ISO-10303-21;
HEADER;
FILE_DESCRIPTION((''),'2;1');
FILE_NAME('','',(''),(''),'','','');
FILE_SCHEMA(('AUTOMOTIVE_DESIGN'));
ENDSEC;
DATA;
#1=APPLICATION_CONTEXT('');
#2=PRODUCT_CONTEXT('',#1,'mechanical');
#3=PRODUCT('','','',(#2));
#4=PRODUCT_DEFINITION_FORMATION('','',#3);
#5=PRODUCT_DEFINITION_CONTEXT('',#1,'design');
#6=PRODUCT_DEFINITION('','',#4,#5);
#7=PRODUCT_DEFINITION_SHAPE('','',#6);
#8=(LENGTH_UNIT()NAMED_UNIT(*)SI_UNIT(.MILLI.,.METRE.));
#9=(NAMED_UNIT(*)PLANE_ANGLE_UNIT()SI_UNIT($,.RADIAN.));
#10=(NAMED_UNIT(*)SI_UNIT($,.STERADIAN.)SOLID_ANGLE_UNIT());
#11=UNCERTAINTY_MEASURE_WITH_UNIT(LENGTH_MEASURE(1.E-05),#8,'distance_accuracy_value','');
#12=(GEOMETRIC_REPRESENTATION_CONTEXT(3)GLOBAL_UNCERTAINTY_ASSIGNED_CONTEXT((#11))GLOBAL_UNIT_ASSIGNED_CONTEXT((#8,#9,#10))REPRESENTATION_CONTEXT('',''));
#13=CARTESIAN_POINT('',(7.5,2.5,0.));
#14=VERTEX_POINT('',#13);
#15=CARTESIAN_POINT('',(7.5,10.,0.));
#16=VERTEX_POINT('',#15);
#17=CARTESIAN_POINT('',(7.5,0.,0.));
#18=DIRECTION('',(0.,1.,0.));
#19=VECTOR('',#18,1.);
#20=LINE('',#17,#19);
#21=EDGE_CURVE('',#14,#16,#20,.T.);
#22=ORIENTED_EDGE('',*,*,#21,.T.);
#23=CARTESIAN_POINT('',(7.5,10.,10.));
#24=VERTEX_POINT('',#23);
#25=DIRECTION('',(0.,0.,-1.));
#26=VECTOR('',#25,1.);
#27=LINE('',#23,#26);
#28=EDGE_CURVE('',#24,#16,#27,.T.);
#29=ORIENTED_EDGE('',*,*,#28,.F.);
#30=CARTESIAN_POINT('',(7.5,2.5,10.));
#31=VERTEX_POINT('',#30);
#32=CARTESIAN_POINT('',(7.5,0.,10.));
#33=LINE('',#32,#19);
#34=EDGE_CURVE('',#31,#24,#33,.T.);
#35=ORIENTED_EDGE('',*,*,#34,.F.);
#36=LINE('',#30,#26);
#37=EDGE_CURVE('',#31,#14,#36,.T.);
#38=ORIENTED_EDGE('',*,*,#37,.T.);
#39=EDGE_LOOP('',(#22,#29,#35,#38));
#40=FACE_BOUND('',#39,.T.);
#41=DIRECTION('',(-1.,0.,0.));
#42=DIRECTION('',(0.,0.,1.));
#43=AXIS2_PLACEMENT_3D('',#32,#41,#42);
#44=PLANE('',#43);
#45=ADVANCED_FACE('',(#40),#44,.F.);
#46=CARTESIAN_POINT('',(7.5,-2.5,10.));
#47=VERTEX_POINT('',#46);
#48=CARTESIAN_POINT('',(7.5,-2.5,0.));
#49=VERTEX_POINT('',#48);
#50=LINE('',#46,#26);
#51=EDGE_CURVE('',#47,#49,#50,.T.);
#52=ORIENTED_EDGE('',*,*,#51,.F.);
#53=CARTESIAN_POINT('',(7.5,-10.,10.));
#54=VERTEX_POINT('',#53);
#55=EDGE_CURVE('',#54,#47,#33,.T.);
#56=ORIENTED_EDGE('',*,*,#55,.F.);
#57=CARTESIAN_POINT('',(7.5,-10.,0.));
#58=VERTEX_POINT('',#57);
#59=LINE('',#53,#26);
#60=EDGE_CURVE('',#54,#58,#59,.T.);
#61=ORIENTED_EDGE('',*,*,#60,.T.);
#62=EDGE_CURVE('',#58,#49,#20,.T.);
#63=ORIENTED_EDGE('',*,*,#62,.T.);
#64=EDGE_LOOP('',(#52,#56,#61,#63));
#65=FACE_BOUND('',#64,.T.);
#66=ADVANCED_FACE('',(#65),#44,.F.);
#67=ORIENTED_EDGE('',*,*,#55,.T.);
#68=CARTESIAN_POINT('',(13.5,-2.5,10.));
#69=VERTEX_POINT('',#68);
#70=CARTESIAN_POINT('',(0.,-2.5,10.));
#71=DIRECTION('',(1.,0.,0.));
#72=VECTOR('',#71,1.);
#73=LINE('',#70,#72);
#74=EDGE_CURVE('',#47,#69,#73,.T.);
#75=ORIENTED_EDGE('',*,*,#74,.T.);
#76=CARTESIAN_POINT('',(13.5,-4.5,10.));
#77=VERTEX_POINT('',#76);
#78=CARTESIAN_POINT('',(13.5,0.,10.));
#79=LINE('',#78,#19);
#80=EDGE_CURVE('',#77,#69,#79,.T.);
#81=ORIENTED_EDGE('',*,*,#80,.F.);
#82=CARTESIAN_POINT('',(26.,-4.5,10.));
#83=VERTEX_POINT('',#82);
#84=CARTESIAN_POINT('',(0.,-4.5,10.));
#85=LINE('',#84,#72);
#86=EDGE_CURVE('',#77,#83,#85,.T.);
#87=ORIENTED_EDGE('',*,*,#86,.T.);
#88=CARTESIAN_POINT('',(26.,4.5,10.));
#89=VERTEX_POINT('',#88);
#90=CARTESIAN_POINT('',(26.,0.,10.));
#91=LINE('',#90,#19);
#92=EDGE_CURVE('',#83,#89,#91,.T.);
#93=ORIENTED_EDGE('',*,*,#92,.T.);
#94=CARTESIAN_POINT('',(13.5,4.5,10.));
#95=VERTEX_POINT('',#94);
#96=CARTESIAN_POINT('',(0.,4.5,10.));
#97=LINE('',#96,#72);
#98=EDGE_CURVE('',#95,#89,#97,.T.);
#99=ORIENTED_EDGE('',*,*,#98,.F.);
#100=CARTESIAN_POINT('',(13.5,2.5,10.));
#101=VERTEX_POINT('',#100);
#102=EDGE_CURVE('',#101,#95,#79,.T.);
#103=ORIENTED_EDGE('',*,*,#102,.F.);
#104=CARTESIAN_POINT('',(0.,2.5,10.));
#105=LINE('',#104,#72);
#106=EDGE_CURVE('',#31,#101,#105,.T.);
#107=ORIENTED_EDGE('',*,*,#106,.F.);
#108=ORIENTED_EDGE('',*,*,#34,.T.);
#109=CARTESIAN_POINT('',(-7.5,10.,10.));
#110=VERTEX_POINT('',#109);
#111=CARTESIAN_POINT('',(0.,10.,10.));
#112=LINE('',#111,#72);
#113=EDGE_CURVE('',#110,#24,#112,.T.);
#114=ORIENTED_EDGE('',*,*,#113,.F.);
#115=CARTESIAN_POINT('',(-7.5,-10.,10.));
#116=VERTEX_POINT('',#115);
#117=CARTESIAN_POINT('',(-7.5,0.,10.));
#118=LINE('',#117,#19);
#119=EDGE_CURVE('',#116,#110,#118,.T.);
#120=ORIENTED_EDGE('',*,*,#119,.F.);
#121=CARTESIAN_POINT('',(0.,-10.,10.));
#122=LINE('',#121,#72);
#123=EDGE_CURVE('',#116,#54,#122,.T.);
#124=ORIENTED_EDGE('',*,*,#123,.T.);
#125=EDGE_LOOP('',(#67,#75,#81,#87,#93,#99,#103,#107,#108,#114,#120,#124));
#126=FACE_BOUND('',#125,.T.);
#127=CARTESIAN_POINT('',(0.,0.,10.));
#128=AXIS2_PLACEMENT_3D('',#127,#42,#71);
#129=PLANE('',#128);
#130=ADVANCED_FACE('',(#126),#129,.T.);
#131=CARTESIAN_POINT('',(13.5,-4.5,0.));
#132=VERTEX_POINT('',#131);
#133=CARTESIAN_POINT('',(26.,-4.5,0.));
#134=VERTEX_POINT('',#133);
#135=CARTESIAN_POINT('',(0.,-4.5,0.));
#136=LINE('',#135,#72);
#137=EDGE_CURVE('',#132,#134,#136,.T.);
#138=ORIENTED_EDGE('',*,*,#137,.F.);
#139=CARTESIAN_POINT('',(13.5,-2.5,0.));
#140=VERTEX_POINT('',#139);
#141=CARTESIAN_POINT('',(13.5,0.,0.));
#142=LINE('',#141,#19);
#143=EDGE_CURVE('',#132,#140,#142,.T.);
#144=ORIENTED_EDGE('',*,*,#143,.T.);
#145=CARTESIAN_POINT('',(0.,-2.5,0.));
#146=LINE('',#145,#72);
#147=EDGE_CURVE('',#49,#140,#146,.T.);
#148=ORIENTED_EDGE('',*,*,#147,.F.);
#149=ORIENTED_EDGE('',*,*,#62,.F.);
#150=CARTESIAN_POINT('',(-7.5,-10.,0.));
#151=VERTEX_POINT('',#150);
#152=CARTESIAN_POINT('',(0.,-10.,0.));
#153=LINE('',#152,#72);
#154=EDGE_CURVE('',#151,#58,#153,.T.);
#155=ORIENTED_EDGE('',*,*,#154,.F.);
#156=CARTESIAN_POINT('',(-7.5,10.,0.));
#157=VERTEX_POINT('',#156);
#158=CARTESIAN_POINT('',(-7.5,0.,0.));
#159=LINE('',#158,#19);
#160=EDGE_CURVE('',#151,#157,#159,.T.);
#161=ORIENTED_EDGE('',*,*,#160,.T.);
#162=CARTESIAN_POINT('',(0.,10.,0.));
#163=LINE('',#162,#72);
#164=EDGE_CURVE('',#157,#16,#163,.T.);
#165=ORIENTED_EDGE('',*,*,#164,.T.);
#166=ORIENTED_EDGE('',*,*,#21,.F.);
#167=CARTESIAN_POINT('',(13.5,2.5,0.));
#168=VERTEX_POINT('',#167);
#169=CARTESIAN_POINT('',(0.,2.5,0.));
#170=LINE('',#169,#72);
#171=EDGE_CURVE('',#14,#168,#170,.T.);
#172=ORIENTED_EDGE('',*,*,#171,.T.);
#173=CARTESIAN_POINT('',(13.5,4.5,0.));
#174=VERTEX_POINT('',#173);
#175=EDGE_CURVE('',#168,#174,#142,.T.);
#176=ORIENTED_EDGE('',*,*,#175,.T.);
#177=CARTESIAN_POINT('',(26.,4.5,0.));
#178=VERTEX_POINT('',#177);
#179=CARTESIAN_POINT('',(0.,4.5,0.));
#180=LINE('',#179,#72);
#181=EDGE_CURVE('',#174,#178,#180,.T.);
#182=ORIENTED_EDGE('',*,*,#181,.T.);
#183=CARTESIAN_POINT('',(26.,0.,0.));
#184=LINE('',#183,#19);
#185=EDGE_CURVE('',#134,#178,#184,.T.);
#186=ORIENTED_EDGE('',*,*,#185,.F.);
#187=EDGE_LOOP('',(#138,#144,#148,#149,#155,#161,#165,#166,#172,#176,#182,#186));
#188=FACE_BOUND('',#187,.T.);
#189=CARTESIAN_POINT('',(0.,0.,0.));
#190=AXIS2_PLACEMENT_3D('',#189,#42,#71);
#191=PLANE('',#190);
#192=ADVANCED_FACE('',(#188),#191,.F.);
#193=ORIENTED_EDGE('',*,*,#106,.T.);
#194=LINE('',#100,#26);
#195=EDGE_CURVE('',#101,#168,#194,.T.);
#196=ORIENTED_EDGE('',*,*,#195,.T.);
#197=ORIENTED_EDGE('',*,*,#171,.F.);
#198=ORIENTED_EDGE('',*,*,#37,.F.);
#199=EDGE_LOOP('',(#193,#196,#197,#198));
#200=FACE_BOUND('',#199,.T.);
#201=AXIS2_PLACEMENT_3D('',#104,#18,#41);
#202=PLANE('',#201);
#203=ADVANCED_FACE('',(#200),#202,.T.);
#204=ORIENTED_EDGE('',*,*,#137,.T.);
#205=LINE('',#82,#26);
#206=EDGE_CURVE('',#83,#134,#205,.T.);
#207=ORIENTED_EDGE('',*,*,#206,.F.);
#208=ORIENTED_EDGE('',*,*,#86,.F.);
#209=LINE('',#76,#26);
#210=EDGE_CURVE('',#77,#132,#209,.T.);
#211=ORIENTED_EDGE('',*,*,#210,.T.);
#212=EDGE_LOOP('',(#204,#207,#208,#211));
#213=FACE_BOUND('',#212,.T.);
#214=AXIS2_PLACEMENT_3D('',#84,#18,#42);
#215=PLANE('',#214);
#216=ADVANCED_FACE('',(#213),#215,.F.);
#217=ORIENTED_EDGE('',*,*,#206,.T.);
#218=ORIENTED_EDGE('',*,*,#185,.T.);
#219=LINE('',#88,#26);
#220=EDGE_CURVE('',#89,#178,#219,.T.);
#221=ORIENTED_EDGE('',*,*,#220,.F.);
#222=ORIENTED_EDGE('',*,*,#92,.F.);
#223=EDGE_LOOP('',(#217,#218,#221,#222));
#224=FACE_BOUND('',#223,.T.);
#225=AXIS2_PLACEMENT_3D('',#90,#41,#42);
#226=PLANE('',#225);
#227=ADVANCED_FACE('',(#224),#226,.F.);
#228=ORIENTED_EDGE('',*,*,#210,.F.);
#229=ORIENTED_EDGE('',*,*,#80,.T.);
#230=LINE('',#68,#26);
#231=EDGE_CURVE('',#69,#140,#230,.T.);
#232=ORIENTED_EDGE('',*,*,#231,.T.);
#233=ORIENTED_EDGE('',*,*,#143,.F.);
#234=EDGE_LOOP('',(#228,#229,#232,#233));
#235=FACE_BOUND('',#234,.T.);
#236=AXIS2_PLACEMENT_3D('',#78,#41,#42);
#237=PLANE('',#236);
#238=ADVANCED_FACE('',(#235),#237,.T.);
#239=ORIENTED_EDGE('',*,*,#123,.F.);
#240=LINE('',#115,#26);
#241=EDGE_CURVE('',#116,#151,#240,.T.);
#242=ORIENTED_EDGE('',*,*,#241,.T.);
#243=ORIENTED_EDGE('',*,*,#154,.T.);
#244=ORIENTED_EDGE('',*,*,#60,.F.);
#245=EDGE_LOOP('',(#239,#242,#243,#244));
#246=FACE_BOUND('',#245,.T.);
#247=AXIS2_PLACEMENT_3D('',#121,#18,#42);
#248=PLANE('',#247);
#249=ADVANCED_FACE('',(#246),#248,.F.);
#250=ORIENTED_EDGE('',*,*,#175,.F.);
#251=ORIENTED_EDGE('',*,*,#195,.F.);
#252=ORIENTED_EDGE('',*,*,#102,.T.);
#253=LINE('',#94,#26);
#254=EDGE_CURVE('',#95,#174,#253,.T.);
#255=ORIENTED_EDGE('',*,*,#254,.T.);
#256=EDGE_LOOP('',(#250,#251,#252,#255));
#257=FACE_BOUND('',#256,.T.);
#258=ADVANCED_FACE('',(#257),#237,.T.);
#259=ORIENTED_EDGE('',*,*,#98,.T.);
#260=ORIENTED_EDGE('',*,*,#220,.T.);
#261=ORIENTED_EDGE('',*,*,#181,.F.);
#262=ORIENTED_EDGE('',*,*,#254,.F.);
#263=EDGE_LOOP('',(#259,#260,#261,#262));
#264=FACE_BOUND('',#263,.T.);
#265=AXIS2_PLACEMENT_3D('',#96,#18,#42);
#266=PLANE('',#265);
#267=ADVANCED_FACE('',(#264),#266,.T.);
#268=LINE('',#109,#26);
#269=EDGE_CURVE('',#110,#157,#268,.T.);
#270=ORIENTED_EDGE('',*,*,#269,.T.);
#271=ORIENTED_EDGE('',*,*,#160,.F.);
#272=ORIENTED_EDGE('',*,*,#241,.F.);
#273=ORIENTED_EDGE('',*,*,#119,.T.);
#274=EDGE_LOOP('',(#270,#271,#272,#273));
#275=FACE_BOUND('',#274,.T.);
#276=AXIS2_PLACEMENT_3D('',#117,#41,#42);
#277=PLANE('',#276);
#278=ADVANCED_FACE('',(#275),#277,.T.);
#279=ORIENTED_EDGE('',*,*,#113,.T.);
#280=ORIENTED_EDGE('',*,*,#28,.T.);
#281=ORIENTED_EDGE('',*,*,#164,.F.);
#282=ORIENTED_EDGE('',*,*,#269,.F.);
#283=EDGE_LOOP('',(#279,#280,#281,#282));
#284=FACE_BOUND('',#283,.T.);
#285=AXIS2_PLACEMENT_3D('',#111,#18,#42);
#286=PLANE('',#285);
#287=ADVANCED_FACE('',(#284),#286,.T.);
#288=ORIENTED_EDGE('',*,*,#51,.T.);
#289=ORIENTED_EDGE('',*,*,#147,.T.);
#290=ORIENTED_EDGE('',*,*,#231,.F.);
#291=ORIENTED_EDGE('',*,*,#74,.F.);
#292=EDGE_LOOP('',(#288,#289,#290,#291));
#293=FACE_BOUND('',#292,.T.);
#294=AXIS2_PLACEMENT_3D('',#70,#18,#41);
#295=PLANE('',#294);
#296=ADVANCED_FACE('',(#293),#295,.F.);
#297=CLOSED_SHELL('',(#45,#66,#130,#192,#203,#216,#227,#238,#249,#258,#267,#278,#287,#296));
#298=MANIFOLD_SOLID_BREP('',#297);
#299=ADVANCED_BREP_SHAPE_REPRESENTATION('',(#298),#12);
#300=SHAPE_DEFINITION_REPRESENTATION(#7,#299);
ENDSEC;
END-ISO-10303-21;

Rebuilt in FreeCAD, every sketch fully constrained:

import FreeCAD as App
import Part
import Sketcher
from FreeCAD import Vector
Q = App.Units.Quantity


def add_polygon(sketch, points):
    """Adds a closed chain of lines whose ends are joined by coincident constraints."""
    first, n = sketch.GeometryCount, len(points)
    for a, b in zip(points, points[1:] + points[:1]):
        sketch.addGeometry(Part.LineSegment(App.Vector(*a, 0), App.Vector(*b, 0)), False)
    for i in range(n):
        sketch.addConstraint(Sketcher.Constraint("Coincident", first + i, 2, first + (i + 1) % n, 1))

doc = App.newDocument("Part")
params = doc.addObject("Spreadsheet::Sheet", "Params")
for row, (alias, value) in enumerate([
    ("sketch1_width", "15 mm"),
    ("sketch1_width2", "6 mm"),
    ("sketch1_height", "20 mm"),
    ("sketch1_height2", "2 mm"),
    ("sketch1_height3", "9 mm"),
    ("pad1_length", "10 mm"),
], start=1):
    params.set(f"A{row}", alias)
    params.set(f"B{row}", "=" + value)
    params.setAlias(f"B{row}", alias)

body = doc.addObject("PartDesign::Body", "Body")

# Sketch on XY plane
sketch1 = body.newObject("Sketcher::SketchObject", "Sketch")
sketch1.AttachmentSupport = (doc.getObject("XY_Plane"), [""])
sketch1.MapMode = "FlatFace"
add_polygon(sketch1, [(-7.5, 10), (-7.5, -10), (7.5, -10), (7.5, -2.5), (13.5, -2.5), (13.5, -4.5), (26, -4.5), (26, 4.5), (13.5, 4.5), (13.5, 2.5), (7.5, 2.5), (7.5, 10)])  # lines 0-11
sketch1.addConstraint(Sketcher.Constraint("Vertical", 0))
sketch1.addConstraint(Sketcher.Constraint("Horizontal", 1))
sketch1.addConstraint(Sketcher.Constraint("Vertical", 2))
sketch1.addConstraint(Sketcher.Constraint("Horizontal", 3))
sketch1.addConstraint(Sketcher.Constraint("Vertical", 4))
sketch1.addConstraint(Sketcher.Constraint("Horizontal", 5))
sketch1.addConstraint(Sketcher.Constraint("Vertical", 6))
sketch1.addConstraint(Sketcher.Constraint("Horizontal", 7))
sketch1.addConstraint(Sketcher.Constraint("Vertical", 8))
sketch1.addConstraint(Sketcher.Constraint("Horizontal", 9))
sketch1.addConstraint(Sketcher.Constraint("Vertical", 10))
sketch1.addConstraint(Sketcher.Constraint("Horizontal", 11))
sketch1.addConstraint(Sketcher.Constraint("Symmetric", 0, 2, 10, 2, -1, 1))
sketch1.addConstraint(Sketcher.Constraint("Symmetric", 4, 2, 7, 2, -1))
sketch1.addConstraint(Sketcher.Constraint("Symmetric", 2, 2, 9, 2, -1))
sketch1.addConstraint(Sketcher.Constraint("DistanceX", 1, 1, 1, 2, Q("15 mm")))
sketch1.addConstraint(Sketcher.Constraint("DistanceX", 3, 1, 3, 2, Q("6 mm")))
sketch1.addConstraint(Sketcher.Constraint("DistanceY", 0, 2, 0, 1, Q("20 mm")))
sketch1.addConstraint(Sketcher.Constraint("DistanceY", 4, 2, 4, 1, Q("2 mm")))
sketch1.addConstraint(Sketcher.Constraint("DistanceY", 6, 1, 6, 2, Q("9 mm")))
sketch1.addConstraint(Sketcher.Constraint("DistanceX", 5, 1, 5, 2, Q("12.5 mm")))
sketch1.setExpression("Constraints[27]", "Params.sketch1_width")
sketch1.setExpression("Constraints[28]", "Params.sketch1_width2")
sketch1.setExpression("Constraints[29]", "Params.sketch1_height")
sketch1.setExpression("Constraints[30]", "Params.sketch1_height2")
sketch1.setExpression("Constraints[31]", "Params.sketch1_height3")
pad1 = body.newObject("PartDesign::Pad", "Pad")
pad1.Profile = sketch1
pad1.setExpression("Length", "Params.pad1_length")

doc.recompute()
